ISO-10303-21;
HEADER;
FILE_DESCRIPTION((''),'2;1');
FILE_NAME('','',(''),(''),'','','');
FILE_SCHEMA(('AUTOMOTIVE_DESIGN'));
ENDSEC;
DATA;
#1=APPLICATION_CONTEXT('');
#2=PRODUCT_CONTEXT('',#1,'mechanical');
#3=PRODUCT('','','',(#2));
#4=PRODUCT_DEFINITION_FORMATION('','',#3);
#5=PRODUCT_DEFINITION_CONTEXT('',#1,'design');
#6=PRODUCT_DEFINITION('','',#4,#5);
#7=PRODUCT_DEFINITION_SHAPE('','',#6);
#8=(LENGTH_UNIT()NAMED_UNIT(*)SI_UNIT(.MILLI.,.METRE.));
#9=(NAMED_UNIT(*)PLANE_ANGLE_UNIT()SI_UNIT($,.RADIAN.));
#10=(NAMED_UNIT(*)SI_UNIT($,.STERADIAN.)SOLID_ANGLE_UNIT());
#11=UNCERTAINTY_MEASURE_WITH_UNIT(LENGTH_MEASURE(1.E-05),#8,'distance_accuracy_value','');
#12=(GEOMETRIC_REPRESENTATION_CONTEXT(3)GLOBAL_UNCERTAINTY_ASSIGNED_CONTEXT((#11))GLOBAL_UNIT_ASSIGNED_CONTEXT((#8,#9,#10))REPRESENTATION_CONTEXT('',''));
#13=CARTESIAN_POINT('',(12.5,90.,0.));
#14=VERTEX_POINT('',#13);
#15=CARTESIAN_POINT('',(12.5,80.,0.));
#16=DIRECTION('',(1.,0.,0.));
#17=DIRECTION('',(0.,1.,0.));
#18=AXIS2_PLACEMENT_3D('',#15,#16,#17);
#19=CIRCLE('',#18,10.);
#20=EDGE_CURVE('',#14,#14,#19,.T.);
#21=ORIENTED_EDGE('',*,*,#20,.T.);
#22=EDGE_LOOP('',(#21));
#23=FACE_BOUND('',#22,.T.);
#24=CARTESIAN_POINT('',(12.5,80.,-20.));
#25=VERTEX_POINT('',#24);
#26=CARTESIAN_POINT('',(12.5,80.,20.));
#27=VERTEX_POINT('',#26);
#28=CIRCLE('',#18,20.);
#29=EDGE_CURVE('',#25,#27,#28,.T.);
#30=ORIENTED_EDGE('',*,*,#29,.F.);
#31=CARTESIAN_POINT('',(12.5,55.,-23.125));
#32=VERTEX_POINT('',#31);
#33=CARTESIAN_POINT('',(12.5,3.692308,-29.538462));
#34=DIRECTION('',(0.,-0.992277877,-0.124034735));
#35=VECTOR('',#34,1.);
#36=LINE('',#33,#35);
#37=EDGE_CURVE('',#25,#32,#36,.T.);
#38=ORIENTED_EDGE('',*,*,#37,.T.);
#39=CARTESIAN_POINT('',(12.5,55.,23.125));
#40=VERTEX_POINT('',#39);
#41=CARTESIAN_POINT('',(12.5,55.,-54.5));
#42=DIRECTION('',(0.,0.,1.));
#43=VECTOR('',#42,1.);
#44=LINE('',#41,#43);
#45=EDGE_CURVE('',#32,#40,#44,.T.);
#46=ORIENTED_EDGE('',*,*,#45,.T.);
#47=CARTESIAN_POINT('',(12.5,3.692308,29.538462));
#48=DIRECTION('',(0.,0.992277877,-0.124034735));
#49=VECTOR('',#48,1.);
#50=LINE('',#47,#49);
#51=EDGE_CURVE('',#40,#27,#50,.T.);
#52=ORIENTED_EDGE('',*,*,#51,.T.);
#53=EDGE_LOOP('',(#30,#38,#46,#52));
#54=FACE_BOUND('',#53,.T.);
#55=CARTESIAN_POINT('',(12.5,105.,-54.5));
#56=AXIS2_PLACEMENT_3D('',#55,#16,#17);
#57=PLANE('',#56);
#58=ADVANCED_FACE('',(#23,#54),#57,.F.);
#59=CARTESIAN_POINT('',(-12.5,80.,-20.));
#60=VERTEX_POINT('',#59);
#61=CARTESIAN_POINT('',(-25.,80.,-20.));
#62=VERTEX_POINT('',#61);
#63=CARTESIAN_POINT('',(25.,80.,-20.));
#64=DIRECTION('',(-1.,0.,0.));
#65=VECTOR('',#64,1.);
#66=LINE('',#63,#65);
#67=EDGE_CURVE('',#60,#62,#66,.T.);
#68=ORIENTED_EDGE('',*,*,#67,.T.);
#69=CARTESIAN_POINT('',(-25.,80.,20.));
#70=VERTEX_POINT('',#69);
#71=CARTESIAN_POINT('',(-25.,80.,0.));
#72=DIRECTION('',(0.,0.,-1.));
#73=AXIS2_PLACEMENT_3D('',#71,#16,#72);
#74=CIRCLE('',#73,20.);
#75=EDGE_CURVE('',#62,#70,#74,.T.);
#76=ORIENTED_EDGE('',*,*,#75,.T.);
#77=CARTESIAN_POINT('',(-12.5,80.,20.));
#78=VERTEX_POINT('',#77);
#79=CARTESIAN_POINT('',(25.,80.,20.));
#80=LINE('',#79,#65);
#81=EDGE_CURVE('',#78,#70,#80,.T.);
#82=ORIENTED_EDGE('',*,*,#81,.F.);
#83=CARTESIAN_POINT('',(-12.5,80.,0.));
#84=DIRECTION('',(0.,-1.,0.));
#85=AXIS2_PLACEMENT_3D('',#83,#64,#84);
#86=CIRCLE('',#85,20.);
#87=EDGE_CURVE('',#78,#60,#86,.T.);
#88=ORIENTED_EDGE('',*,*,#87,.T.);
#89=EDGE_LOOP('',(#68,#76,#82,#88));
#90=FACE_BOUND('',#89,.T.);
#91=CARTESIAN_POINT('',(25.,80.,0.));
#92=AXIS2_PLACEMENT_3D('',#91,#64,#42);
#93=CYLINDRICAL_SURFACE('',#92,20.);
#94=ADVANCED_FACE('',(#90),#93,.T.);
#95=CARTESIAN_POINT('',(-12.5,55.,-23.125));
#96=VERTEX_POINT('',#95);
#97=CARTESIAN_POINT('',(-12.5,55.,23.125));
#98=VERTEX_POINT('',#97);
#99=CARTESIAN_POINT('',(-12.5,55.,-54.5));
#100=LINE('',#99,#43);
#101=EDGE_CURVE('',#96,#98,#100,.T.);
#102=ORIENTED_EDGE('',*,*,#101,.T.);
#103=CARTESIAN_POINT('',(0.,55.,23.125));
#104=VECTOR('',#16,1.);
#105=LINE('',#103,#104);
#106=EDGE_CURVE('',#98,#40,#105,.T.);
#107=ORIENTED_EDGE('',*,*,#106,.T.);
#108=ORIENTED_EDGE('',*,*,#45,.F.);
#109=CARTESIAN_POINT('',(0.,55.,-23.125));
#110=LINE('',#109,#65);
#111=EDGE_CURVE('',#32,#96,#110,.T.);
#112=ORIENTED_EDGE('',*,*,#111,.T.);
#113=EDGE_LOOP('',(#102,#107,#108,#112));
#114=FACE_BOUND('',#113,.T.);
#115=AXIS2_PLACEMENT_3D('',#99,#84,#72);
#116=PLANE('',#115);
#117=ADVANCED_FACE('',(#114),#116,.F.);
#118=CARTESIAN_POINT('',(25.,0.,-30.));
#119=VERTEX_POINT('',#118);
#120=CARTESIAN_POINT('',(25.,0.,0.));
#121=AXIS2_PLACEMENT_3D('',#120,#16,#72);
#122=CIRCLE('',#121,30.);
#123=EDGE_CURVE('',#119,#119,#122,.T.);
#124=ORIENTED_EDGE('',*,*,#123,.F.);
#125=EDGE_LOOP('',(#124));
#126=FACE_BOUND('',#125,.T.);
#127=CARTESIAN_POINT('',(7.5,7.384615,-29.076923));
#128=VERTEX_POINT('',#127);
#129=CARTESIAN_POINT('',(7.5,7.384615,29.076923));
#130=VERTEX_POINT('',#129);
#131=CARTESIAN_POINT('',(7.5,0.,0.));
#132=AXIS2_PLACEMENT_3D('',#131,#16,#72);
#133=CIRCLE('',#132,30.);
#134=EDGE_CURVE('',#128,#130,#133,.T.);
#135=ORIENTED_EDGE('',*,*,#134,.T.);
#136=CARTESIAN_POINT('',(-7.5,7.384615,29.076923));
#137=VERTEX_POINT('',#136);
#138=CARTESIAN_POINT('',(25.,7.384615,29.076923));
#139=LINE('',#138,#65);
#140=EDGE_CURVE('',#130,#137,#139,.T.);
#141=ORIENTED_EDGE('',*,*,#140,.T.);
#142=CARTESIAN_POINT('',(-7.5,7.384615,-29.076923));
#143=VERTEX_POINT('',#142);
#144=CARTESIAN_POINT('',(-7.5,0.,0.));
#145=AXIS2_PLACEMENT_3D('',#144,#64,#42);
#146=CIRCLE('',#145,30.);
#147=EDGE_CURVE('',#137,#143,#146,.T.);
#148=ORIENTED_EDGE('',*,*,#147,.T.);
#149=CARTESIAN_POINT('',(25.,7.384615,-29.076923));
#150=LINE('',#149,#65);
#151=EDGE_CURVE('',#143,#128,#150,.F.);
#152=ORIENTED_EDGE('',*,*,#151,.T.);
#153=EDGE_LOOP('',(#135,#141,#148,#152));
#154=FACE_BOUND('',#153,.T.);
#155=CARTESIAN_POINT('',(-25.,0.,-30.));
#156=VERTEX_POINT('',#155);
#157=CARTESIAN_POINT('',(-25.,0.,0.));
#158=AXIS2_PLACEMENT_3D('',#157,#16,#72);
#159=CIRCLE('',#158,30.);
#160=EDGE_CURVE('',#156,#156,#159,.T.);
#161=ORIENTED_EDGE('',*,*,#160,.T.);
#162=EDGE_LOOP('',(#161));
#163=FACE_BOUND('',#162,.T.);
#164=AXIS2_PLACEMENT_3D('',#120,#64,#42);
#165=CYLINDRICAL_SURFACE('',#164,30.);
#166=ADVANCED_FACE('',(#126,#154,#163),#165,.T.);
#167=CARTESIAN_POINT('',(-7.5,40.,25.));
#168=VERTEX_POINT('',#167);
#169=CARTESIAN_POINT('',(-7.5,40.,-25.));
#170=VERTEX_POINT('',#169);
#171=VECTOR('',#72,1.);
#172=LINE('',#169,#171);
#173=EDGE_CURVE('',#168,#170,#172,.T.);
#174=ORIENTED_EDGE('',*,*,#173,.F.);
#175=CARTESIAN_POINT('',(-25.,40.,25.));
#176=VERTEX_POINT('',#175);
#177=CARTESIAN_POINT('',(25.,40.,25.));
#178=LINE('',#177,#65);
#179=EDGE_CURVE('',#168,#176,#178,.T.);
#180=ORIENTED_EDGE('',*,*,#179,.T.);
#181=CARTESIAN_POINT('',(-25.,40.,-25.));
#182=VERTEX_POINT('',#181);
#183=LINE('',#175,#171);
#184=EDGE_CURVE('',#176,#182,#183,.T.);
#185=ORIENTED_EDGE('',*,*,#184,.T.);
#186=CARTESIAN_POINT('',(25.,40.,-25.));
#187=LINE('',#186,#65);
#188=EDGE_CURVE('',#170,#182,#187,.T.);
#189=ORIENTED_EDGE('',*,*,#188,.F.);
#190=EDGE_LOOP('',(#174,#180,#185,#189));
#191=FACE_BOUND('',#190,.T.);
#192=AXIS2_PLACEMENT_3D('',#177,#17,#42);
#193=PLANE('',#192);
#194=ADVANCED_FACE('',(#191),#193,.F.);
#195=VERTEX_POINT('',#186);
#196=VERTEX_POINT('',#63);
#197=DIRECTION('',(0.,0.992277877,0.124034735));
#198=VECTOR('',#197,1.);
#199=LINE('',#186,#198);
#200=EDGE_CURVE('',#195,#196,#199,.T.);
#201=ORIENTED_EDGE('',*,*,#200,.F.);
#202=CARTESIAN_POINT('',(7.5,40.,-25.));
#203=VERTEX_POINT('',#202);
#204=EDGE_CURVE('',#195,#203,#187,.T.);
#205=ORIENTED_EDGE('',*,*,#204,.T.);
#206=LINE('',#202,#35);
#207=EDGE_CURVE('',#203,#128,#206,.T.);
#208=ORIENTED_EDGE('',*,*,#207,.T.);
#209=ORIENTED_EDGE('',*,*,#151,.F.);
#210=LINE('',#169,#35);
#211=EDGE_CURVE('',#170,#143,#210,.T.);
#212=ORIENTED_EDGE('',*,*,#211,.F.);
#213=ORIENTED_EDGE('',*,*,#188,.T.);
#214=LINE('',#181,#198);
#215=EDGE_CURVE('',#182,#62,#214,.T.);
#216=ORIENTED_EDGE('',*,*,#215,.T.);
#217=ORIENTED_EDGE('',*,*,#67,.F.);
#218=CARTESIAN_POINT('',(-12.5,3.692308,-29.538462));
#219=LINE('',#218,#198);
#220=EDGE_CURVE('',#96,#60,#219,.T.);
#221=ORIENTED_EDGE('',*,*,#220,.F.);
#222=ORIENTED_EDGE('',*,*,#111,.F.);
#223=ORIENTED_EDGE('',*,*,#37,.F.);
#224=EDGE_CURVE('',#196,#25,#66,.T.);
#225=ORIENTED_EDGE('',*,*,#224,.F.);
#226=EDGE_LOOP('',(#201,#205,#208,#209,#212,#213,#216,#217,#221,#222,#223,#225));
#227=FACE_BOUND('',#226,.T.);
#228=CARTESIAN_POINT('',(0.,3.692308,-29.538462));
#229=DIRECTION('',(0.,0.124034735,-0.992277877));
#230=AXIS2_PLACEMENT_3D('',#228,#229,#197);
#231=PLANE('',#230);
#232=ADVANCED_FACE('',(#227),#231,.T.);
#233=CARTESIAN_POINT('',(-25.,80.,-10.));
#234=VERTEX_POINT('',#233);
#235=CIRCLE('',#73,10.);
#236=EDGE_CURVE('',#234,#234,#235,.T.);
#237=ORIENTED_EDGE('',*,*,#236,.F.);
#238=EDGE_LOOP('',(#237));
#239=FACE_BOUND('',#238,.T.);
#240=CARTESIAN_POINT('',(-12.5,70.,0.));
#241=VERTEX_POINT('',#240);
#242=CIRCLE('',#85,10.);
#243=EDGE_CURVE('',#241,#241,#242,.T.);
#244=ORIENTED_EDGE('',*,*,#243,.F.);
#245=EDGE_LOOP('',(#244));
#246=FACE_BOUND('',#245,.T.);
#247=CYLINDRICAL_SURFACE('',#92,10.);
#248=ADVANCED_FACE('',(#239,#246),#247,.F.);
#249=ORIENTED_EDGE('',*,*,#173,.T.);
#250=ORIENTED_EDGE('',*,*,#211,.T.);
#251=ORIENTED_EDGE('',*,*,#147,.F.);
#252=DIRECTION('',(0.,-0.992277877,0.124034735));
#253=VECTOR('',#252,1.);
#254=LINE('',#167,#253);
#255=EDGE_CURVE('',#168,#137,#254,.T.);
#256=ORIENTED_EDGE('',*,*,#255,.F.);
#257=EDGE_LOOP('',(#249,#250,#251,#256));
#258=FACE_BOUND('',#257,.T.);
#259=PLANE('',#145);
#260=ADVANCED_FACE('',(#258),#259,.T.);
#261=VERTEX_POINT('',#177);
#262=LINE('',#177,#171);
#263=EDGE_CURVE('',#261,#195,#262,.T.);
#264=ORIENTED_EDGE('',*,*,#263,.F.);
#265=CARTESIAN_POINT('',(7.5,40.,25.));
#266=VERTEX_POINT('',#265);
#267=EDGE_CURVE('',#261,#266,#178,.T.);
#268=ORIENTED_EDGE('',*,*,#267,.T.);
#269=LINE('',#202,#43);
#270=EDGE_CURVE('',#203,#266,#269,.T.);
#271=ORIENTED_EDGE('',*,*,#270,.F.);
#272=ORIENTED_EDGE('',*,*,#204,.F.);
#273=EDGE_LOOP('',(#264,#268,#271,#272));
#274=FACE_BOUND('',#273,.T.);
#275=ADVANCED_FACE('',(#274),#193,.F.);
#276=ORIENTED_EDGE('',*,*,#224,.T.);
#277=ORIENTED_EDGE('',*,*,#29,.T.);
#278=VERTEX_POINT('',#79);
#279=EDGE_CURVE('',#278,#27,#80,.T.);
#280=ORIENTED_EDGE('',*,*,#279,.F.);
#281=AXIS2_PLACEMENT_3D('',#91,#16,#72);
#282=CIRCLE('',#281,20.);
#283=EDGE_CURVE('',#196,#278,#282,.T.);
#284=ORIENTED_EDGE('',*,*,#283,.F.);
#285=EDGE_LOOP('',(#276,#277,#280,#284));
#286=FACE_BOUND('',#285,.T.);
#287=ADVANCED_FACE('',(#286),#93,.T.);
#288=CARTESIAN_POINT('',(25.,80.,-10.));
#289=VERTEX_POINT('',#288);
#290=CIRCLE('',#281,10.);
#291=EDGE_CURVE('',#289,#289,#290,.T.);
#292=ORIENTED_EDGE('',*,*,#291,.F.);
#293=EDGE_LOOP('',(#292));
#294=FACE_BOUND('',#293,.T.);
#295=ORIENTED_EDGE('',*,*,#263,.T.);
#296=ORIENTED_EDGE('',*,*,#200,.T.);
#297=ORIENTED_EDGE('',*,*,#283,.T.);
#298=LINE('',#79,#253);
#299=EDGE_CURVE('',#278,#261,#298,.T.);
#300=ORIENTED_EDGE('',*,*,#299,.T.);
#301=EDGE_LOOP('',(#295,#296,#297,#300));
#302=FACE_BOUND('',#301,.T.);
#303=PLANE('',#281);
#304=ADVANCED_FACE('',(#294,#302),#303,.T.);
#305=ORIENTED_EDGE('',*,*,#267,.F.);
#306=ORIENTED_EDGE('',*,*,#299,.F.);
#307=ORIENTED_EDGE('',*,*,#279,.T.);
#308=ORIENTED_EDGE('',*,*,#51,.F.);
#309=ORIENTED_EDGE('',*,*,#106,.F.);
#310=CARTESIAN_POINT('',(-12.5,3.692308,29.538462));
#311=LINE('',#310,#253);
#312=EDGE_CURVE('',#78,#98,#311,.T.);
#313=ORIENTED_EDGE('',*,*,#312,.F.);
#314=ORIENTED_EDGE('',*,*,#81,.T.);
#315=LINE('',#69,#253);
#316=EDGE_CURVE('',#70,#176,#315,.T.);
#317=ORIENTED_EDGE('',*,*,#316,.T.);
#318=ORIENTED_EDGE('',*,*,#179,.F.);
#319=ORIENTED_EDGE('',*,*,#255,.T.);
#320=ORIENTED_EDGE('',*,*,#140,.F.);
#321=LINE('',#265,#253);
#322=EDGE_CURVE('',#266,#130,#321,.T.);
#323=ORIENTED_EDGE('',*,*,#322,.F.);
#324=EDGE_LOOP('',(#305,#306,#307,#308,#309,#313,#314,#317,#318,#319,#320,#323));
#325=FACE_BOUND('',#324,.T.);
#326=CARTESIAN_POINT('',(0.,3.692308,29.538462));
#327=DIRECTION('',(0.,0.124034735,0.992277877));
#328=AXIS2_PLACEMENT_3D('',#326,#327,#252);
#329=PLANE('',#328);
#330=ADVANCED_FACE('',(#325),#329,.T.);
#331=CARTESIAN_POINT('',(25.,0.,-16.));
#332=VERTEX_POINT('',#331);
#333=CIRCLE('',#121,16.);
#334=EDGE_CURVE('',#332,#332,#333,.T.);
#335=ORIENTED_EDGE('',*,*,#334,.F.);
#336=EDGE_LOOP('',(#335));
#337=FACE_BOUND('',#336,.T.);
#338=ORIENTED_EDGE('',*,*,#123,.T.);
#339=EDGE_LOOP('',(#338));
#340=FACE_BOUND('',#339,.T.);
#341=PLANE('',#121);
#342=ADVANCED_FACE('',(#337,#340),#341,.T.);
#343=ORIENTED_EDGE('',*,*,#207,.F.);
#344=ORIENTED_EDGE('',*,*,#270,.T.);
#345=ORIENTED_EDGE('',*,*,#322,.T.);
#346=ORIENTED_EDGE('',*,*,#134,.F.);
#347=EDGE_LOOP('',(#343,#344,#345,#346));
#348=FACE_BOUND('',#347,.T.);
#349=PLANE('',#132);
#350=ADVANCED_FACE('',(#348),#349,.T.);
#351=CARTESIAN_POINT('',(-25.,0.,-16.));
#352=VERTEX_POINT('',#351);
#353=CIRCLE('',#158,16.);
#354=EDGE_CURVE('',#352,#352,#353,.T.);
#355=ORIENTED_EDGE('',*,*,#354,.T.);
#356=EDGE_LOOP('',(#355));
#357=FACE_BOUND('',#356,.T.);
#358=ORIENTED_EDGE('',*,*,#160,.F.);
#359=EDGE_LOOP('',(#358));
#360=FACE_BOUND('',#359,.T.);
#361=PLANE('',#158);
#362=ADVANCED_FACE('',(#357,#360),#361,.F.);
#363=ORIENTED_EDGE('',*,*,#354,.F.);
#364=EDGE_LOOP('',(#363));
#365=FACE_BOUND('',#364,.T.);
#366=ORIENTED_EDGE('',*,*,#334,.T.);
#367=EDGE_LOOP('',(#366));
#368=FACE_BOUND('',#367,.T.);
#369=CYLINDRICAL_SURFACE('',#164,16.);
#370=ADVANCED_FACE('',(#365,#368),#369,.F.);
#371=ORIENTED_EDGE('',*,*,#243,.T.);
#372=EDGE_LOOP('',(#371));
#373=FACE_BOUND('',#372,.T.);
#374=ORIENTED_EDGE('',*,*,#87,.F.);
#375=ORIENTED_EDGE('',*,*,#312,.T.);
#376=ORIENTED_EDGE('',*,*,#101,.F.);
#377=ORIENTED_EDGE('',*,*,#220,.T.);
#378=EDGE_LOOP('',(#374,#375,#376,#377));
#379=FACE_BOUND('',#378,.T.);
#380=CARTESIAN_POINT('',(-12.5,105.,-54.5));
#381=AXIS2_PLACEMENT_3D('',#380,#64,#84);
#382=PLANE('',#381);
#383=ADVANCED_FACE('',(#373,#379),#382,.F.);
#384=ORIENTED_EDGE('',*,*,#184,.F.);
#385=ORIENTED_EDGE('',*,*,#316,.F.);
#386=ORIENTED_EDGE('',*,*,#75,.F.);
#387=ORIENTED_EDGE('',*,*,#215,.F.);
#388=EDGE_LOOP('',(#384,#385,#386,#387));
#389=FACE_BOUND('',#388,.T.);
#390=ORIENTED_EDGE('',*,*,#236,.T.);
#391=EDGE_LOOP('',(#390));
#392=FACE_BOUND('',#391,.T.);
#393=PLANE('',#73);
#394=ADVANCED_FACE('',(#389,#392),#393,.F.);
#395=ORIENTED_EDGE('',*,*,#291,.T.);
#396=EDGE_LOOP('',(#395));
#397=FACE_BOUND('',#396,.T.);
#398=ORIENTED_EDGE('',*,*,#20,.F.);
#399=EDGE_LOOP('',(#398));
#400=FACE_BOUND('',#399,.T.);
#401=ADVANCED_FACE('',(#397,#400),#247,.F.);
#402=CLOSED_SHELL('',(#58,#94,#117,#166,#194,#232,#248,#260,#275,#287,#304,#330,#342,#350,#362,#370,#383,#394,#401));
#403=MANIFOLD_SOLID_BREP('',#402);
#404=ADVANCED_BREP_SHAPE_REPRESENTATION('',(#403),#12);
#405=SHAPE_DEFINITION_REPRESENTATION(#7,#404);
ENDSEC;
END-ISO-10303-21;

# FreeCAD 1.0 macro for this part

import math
import FreeCAD as App
import Part
import Sketcher

V = App.Vector
Q = App.Units.Quantity


def add_polygon(sketch, points):
    """Adds a closed chain of lines whose ends are joined by coincident constraints."""
    first, n = sketch.GeometryCount, len(points)
    for a, b in zip(points, points[1:] + points[:1]):
        sketch.addGeometry(Part.LineSegment(App.Vector(*a, 0), App.Vector(*b, 0)), False)
    for i in range(n):
        sketch.addConstraint(Sketcher.Constraint("Coincident", first + i, 2, first + (i + 1) % n, 1))

doc = App.newDocument("Part")
body = doc.addObject("PartDesign::Body", "Body")

# Sketch on YZ plane
sketch1 = body.newObject("Sketcher::SketchObject", "Sketch")
sketch1.AttachmentSupport = (doc.getObject("YZ_Plane"), [""])
sketch1.MapMode = "FlatFace"
sketch1.addGeometry([
    Part.Circle(V(0, 0, 0), V(0, 0, 1), 30),
    Part.Circle(V(0, 0, 0), V(0, 0, 1), 16),
], False)
sketch1.addConstraint([
    Sketcher.Constraint("Coincident", 0, 3, -1, 1),
    Sketcher.Constraint("Coincident", 1, 3, -1, 1),
    Sketcher.Constraint("Diameter", 0, Q("60 mm")),
    Sketcher.Constraint("Diameter", 1, Q("32 mm")),
])
pad1 = body.newObject("PartDesign::Pad", "Pad")
pad1.Profile = sketch1
pad1.Length = 50
pad1.Midplane = True
body2 = doc.addObject("PartDesign::Body", "Body001")

# Sketch on YZ plane
sketch2 = body2.newObject("Sketcher::SketchObject", "Sketch001")
sketch2.AttachmentSupport = (doc.getObject("YZ_Plane001"), [""])
sketch2.MapMode = "FlatFace"
sketch2.addGeometry([
    Part.LineSegment(V(80, 20, 0), V(40, 25, 0)),  # 0
    Part.LineSegment(V(40, 25, 0), V(40, -25, 0)),  # 1
    Part.LineSegment(V(40, -25, 0), V(80, -20, 0)),  # 2
    Part.ArcOfCircle(Part.Circle(V(80, 0, 0), V(0, 0, 1), 20), math.radians(-90), math.radians(90)),  # 3
    Part.Circle(V(80, 0, 0), V(0, 0, 1), 10),  # 4
], False)
sketch2.addConstraint([
    Sketcher.Constraint("Coincident", 0, 2, 1, 1),
    Sketcher.Constraint("Coincident", 1, 2, 2, 1),
    Sketcher.Constraint("Coincident", 2, 2, 3, 1),
    Sketcher.Constraint("Coincident", 3, 2, 0, 1),
    Sketcher.Constraint("Vertical", 1),
    Sketcher.Constraint("Coincident", 4, 3, 3, 3),
    Sketcher.Constraint("Symmetric", 2, 2, 3, 2, -1),
    Sketcher.Constraint("Vertical", 4, 3, 2, 2),
    Sketcher.Constraint("Equal", 0, 2),
    Sketcher.Constraint("Diameter", 4, Q("20 mm")),
    Sketcher.Constraint("Radius", 3, Q("20 mm")),
    Sketcher.Constraint("DistanceY", 1, 2, 1, 1, Q("50 mm")),
    Sketcher.Constraint("DistanceX", -1, 1, 3, 3, Q("80 mm")),
    Sketcher.Constraint("DistanceX", -1, 1, 0, 2, Q("40 mm")),
])
pad2 = body2.newObject("PartDesign::Pad", "Pad001")
pad2.Profile = sketch2
pad2.Length = 50
pad2.Midplane = True
body.AllowCompound = True
doc.recompute()

boolean = body.newObject("PartDesign::Boolean", "Boolean")
boolean.Type = "Fuse"
boolean.addObjects([body2])

# Sketch on XZ plane
sketch3 = body.newObject("Sketcher::SketchObject", "Sketch002")
sketch3.AttachmentSupport = (doc.getObject("XZ_Plane"), [""])
sketch3.MapMode = "FlatFace"
sketch3.AttachmentOffset = App.Placement(V(0, 0, -40), App.Rotation())
add_polygon(sketch3, [(-7.5, 25), (-7.5, -25), (7.5, -25), (7.5, 25)])  # lines 0-3
sketch3.addConstraint([
    Sketcher.Constraint("Vertical", 0),
    Sketcher.Constraint("Horizontal", 1),
    Sketcher.Constraint("Vertical", 2),
    Sketcher.Constraint("Horizontal", 3),
    Sketcher.Constraint("Symmetric", 0, 2, 2, 2, -1, 1),
    Sketcher.Constraint("DistanceX", 1, 1, 1, 2, Q("15 mm")),
    Sketcher.Constraint("DistanceY", 0, 2, 0, 1, Q("50 mm")),
])

# Sketch on XZ plane
sketch4 = body.newObject("Sketcher::SketchObject", "Sketch003")
sketch4.AttachmentSupport = (doc.getObject("XZ_Plane"), [""])
sketch4.MapMode = "FlatFace"
add_polygon(sketch4, [(-7.5, -30), (-7.5, 30), (7.5, 30), (7.5, -30)])  # lines 0-3
sketch4.addConstraint([
    Sketcher.Constraint("Vertical", 0),
    Sketcher.Constraint("Horizontal", 1),
    Sketcher.Constraint("Vertical", 2),
    Sketcher.Constraint("Horizontal", 3),
    Sketcher.Constraint("Symmetric", 0, 2, 2, 2, -1, 1),
    Sketcher.Constraint("DistanceX", 1, 1, 1, 2, Q("15 mm")),
    Sketcher.Constraint("DistanceY", 0, 1, 0, 2, Q("60 mm")),
])

additiveloft = body.newObject("PartDesign::AdditiveLoft", "AdditiveLoft")
additiveloft.Profile = sketch3
additiveloft.Sections = [sketch4]

# Sketch on YZ plane
sketch5 = body.newObject("Sketcher::SketchObject", "Sketch004")
sketch5.AttachmentSupport = (doc.getObject("YZ_Plane"), [""])
sketch5.MapMode = "FlatFace"
sketch5.AttachmentOffset = App.Placement(V(0, 0, 25), App.Rotation())
sketch5.addGeometry(Part.Circle(V(0, 0, 0), V(0, 0, 1), 16), False)
sketch5.addConstraint([
    Sketcher.Constraint("Coincident", 0, 3, -1, 1),
    Sketcher.Constraint("Diameter", 0, Q("32 mm")),
])
pocket1 = body.newObject("PartDesign::Pocket", "Pocket")
pocket1.Profile = sketch5
pocket1.Length = 50

# Sketch on XY plane
sketch6 = body.newObject("Sketcher::SketchObject", "Sketch005")
sketch6.AttachmentSupport = (doc.getObject("XY_Plane"), [""])
sketch6.MapMode = "FlatFace"
add_polygon(sketch6, [(-12.5, 105), (-12.5, 55), (12.5, 55), (12.5, 105)])  # lines 0-3
sketch6.addConstraint([
    Sketcher.Constraint("Vertical", 0),
    Sketcher.Constraint("Horizontal", 1),
    Sketcher.Constraint("Vertical", 2),
    Sketcher.Constraint("Horizontal", 3),
    Sketcher.Constraint("DistanceX", 1, 1, 1, 2, Q("25 mm")),
    Sketcher.Constraint("DistanceY", 0, 2, 0, 1, Q("50 mm")),
    Sketcher.Constraint("DistanceY", -1, 1, 0, 2, Q("55 mm")),
    Sketcher.Constraint("DistanceX", 0, 2, -1, 1, Q("12.5 mm")),
])
pocket2 = body.newObject("PartDesign::Pocket", "Pocket001")
pocket2.Profile = sketch6
pocket2.Length = 109
pocket2.Midplane = True

doc.recompute()
